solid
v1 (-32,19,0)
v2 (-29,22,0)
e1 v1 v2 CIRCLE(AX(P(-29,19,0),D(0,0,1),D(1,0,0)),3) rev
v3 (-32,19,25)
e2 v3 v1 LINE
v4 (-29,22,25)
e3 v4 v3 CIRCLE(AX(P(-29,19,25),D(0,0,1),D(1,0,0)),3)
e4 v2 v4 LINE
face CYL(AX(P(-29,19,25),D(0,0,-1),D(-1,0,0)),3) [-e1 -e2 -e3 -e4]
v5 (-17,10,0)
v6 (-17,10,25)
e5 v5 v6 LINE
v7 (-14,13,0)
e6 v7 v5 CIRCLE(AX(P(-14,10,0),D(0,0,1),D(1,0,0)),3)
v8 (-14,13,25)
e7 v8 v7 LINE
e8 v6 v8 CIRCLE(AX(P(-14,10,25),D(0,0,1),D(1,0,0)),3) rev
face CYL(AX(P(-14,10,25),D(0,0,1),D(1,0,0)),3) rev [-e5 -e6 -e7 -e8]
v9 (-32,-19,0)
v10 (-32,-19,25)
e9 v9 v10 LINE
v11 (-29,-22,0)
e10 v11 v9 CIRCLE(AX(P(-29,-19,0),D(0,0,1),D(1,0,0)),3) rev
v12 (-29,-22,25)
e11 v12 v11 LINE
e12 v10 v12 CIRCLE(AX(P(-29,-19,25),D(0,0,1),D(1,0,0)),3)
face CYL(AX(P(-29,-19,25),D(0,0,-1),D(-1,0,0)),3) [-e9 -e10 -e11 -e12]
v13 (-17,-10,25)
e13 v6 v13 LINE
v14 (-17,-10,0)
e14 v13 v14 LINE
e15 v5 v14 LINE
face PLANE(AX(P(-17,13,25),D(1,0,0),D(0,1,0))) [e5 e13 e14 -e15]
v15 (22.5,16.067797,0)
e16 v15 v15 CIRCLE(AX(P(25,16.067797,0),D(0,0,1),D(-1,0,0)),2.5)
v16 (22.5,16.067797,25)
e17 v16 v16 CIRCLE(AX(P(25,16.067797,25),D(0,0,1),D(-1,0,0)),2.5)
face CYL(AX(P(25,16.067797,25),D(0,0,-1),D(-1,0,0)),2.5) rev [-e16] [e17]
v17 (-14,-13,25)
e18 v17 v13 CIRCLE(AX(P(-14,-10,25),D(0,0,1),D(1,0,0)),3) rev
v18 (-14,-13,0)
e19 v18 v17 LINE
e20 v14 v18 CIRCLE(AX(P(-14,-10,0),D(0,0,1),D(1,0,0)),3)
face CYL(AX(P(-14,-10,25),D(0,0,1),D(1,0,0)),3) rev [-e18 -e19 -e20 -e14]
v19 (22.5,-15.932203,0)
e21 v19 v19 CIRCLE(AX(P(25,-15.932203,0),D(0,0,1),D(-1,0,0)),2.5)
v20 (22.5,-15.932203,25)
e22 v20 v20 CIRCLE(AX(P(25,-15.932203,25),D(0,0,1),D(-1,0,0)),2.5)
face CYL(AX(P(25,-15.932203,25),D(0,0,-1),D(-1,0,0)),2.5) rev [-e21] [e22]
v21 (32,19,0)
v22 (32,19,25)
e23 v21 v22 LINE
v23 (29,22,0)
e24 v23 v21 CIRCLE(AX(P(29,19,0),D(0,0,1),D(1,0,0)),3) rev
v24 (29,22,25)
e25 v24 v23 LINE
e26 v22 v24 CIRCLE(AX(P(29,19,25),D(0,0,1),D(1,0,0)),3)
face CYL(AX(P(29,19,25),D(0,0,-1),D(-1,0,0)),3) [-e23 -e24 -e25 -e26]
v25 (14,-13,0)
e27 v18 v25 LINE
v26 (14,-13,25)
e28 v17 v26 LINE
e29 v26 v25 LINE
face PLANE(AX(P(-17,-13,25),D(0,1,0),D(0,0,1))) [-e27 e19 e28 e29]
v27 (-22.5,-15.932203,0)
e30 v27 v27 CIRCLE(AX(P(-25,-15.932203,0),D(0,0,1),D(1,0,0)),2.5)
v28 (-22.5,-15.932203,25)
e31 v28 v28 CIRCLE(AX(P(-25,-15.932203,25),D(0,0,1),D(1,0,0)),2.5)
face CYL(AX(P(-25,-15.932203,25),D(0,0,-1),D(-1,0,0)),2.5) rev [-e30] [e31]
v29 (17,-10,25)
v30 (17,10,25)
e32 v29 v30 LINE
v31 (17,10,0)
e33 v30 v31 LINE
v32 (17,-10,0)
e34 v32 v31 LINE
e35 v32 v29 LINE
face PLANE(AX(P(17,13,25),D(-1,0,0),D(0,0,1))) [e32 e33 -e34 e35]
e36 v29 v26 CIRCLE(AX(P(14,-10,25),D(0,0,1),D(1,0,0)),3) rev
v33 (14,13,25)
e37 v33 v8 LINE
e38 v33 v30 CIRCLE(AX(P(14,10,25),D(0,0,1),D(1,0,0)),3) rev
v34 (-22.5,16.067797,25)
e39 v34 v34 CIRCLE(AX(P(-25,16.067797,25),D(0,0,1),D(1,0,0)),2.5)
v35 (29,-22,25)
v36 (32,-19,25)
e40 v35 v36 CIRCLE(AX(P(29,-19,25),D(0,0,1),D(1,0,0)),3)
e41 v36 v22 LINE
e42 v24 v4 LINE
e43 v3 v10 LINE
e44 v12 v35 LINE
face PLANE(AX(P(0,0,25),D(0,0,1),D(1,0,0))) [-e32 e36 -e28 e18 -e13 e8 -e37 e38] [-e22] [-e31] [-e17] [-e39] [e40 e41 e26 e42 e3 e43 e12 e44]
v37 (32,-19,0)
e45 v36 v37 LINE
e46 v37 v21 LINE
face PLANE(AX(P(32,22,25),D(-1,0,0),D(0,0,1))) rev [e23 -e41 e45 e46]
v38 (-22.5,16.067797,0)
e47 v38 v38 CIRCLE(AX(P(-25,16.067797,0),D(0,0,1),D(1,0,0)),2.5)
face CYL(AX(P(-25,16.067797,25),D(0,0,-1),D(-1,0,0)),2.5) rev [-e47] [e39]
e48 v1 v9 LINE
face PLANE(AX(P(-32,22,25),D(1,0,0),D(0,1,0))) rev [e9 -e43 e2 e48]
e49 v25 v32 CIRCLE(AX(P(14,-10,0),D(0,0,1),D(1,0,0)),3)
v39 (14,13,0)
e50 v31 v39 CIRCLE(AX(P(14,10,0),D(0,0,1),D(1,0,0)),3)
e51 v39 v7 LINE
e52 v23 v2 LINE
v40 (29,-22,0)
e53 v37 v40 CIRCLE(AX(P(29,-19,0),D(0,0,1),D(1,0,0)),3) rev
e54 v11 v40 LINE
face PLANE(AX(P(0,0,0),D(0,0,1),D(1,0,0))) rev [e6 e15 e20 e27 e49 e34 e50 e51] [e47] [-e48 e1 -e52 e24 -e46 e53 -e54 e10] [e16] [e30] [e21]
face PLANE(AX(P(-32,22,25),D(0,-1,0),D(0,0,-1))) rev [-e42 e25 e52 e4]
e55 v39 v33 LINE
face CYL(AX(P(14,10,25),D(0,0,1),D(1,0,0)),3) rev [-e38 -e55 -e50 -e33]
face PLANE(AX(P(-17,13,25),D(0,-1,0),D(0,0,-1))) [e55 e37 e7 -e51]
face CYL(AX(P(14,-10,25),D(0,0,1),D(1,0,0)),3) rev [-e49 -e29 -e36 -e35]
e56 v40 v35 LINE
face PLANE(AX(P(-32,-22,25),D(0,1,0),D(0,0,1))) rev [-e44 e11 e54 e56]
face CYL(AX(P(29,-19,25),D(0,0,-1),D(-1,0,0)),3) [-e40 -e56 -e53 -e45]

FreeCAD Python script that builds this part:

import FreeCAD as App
import Part
import Sketcher
from FreeCAD import Vector


def edges_at(feature, points):
    """Names of the edges that pass closest to the given points."""
    edges = feature.Shape.Edges
    near = lambda p: min(range(len(edges)), key=lambda i: edges[i].distToShape(Part.Vertex(*p))[0])
    return sorted({f"Edge{near(p) + 1}" for p in points})


def add_polygon(sketch, points):
    """Adds a closed chain of lines whose ends are joined by coincident constraints."""
    first, n = sketch.GeometryCount, len(points)
    for a, b in zip(points, points[1:] + points[:1]):
        sketch.addGeometry(Part.LineSegment(App.Vector(*a, 0), App.Vector(*b, 0)), False)
    for i in range(n):
        sketch.addConstraint(Sketcher.Constraint("Coincident", first + i, 2, first + (i + 1) % n, 1))

doc = App.newDocument("Part")
body = doc.addObject("PartDesign::Body", "Body")

# Sketch on XY plane
sketch1 = doc.addObject("Sketcher::SketchObject", "Sketch")
body.addObject(sketch1)
sketch1.AttachmentSupport = (doc.XY_Plane, [""])
sketch1.MapMode = "FlatFace"
add_polygon(sketch1, [(-32, 22), (-32, -22), (32, -22), (32, 22)])  # lines 0-3
sketch1.addGeometry(Part.Circle(Vector(-25, -15.9, 0), Vector(0, 0, 1), 2.5), False)  # 4
sketch1.addGeometry(Part.Circle(Vector(25, -15.9, 0), Vector(0, 0, 1), 2.5), False)  # 5
add_polygon(sketch1, [(17, -13), (-17, -13), (-17, 13), (17, 13)])  # lines 6-9
sketch1.addGeometry(Part.Circle(Vector(-25, 16.1, 0), Vector(0, 0, 1), 2.5), False)  # 10
sketch1.addGeometry(Part.Circle(Vector(25, 16.1, 0), Vector(0, 0, 1), 2.5), False)  # 11
sketch1.addConstraint(Sketcher.Constraint("Vertical", 0))
sketch1.addConstraint(Sketcher.Constraint("Horizontal", 1))
sketch1.addConstraint(Sketcher.Constraint("Vertical", 2))
sketch1.addConstraint(Sketcher.Constraint("Horizontal", 3))
sketch1.addConstraint(Sketcher.Constraint("Horizontal", 6))
sketch1.addConstraint(Sketcher.Constraint("Vertical", 7))
sketch1.addConstraint(Sketcher.Constraint("Horizontal", 8))
sketch1.addConstraint(Sketcher.Constraint("Vertical", 9))
sketch1.addConstraint(Sketcher.Constraint("Equal", 4, 5))
sketch1.addConstraint(Sketcher.Constraint("Equal", 5, 10))
sketch1.addConstraint(Sketcher.Constraint("Equal", 10, 11))
sketch1.addConstraint(Sketcher.Constraint("Symmetric", 0, 2, 2, 2, -1, 1))
sketch1.addConstraint(Sketcher.Constraint("Symmetric", 6, 2, 8, 2, -1, 1))
sketch1.addConstraint(Sketcher.Constraint("Symmetric", 4, 3, 5, 3, -2))
sketch1.addConstraint(Sketcher.Constraint("Symmetric", 10, 3, 11, 3, -2))
sketch1.addConstraint(Sketcher.Constraint("Vertical", 4, 3, 10, 3))
sketch1.addConstraint(Sketcher.Constraint("Diameter", 4, 5.0))
sketch1.addConstraint(Sketcher.Constraint("DistanceX", 1, 1, 1, 2, 64.0))
sketch1.addConstraint(Sketcher.Constraint("DistanceX", 6, 2, 6, 1, 34.0))
sketch1.addConstraint(Sketcher.Constraint("DistanceY", 0, 2, 0, 1, 44.0))
sketch1.addConstraint(Sketcher.Constraint("DistanceY", 7, 1, 7, 2, 26.0))
sketch1.addConstraint(Sketcher.Constraint("DistanceX", 4, 3, -1, 1, 25.0))
sketch1.addConstraint(Sketcher.Constraint("DistanceY", 4, 3, 10, 3, 32.0))
sketch1.addConstraint(Sketcher.Constraint("DistanceY", 4, 3, -1, 1, 15.932203))
pad1 = doc.addObject("PartDesign::Pad", "Pad")
body.addObject(pad1)
pad1.Profile = sketch1
pad1.Length = 25
doc.recompute()

fillet = doc.addObject("PartDesign::Fillet", "Fillet")
body.addObject(fillet)
fillet.Base = (pad1, edges_at(pad1, [
    (17, -13, 12.5),
    (17, 13, 12.5),
    (-17, 13, 12.5),
    (-17, -13, 12.5),
    (32, -22, 12.5),
    (-32, -22, 12.5),
    (-32, 22, 12.5),
    (32, 22, 12.5),
]))
fillet.Radius = 3

doc.recompute()
